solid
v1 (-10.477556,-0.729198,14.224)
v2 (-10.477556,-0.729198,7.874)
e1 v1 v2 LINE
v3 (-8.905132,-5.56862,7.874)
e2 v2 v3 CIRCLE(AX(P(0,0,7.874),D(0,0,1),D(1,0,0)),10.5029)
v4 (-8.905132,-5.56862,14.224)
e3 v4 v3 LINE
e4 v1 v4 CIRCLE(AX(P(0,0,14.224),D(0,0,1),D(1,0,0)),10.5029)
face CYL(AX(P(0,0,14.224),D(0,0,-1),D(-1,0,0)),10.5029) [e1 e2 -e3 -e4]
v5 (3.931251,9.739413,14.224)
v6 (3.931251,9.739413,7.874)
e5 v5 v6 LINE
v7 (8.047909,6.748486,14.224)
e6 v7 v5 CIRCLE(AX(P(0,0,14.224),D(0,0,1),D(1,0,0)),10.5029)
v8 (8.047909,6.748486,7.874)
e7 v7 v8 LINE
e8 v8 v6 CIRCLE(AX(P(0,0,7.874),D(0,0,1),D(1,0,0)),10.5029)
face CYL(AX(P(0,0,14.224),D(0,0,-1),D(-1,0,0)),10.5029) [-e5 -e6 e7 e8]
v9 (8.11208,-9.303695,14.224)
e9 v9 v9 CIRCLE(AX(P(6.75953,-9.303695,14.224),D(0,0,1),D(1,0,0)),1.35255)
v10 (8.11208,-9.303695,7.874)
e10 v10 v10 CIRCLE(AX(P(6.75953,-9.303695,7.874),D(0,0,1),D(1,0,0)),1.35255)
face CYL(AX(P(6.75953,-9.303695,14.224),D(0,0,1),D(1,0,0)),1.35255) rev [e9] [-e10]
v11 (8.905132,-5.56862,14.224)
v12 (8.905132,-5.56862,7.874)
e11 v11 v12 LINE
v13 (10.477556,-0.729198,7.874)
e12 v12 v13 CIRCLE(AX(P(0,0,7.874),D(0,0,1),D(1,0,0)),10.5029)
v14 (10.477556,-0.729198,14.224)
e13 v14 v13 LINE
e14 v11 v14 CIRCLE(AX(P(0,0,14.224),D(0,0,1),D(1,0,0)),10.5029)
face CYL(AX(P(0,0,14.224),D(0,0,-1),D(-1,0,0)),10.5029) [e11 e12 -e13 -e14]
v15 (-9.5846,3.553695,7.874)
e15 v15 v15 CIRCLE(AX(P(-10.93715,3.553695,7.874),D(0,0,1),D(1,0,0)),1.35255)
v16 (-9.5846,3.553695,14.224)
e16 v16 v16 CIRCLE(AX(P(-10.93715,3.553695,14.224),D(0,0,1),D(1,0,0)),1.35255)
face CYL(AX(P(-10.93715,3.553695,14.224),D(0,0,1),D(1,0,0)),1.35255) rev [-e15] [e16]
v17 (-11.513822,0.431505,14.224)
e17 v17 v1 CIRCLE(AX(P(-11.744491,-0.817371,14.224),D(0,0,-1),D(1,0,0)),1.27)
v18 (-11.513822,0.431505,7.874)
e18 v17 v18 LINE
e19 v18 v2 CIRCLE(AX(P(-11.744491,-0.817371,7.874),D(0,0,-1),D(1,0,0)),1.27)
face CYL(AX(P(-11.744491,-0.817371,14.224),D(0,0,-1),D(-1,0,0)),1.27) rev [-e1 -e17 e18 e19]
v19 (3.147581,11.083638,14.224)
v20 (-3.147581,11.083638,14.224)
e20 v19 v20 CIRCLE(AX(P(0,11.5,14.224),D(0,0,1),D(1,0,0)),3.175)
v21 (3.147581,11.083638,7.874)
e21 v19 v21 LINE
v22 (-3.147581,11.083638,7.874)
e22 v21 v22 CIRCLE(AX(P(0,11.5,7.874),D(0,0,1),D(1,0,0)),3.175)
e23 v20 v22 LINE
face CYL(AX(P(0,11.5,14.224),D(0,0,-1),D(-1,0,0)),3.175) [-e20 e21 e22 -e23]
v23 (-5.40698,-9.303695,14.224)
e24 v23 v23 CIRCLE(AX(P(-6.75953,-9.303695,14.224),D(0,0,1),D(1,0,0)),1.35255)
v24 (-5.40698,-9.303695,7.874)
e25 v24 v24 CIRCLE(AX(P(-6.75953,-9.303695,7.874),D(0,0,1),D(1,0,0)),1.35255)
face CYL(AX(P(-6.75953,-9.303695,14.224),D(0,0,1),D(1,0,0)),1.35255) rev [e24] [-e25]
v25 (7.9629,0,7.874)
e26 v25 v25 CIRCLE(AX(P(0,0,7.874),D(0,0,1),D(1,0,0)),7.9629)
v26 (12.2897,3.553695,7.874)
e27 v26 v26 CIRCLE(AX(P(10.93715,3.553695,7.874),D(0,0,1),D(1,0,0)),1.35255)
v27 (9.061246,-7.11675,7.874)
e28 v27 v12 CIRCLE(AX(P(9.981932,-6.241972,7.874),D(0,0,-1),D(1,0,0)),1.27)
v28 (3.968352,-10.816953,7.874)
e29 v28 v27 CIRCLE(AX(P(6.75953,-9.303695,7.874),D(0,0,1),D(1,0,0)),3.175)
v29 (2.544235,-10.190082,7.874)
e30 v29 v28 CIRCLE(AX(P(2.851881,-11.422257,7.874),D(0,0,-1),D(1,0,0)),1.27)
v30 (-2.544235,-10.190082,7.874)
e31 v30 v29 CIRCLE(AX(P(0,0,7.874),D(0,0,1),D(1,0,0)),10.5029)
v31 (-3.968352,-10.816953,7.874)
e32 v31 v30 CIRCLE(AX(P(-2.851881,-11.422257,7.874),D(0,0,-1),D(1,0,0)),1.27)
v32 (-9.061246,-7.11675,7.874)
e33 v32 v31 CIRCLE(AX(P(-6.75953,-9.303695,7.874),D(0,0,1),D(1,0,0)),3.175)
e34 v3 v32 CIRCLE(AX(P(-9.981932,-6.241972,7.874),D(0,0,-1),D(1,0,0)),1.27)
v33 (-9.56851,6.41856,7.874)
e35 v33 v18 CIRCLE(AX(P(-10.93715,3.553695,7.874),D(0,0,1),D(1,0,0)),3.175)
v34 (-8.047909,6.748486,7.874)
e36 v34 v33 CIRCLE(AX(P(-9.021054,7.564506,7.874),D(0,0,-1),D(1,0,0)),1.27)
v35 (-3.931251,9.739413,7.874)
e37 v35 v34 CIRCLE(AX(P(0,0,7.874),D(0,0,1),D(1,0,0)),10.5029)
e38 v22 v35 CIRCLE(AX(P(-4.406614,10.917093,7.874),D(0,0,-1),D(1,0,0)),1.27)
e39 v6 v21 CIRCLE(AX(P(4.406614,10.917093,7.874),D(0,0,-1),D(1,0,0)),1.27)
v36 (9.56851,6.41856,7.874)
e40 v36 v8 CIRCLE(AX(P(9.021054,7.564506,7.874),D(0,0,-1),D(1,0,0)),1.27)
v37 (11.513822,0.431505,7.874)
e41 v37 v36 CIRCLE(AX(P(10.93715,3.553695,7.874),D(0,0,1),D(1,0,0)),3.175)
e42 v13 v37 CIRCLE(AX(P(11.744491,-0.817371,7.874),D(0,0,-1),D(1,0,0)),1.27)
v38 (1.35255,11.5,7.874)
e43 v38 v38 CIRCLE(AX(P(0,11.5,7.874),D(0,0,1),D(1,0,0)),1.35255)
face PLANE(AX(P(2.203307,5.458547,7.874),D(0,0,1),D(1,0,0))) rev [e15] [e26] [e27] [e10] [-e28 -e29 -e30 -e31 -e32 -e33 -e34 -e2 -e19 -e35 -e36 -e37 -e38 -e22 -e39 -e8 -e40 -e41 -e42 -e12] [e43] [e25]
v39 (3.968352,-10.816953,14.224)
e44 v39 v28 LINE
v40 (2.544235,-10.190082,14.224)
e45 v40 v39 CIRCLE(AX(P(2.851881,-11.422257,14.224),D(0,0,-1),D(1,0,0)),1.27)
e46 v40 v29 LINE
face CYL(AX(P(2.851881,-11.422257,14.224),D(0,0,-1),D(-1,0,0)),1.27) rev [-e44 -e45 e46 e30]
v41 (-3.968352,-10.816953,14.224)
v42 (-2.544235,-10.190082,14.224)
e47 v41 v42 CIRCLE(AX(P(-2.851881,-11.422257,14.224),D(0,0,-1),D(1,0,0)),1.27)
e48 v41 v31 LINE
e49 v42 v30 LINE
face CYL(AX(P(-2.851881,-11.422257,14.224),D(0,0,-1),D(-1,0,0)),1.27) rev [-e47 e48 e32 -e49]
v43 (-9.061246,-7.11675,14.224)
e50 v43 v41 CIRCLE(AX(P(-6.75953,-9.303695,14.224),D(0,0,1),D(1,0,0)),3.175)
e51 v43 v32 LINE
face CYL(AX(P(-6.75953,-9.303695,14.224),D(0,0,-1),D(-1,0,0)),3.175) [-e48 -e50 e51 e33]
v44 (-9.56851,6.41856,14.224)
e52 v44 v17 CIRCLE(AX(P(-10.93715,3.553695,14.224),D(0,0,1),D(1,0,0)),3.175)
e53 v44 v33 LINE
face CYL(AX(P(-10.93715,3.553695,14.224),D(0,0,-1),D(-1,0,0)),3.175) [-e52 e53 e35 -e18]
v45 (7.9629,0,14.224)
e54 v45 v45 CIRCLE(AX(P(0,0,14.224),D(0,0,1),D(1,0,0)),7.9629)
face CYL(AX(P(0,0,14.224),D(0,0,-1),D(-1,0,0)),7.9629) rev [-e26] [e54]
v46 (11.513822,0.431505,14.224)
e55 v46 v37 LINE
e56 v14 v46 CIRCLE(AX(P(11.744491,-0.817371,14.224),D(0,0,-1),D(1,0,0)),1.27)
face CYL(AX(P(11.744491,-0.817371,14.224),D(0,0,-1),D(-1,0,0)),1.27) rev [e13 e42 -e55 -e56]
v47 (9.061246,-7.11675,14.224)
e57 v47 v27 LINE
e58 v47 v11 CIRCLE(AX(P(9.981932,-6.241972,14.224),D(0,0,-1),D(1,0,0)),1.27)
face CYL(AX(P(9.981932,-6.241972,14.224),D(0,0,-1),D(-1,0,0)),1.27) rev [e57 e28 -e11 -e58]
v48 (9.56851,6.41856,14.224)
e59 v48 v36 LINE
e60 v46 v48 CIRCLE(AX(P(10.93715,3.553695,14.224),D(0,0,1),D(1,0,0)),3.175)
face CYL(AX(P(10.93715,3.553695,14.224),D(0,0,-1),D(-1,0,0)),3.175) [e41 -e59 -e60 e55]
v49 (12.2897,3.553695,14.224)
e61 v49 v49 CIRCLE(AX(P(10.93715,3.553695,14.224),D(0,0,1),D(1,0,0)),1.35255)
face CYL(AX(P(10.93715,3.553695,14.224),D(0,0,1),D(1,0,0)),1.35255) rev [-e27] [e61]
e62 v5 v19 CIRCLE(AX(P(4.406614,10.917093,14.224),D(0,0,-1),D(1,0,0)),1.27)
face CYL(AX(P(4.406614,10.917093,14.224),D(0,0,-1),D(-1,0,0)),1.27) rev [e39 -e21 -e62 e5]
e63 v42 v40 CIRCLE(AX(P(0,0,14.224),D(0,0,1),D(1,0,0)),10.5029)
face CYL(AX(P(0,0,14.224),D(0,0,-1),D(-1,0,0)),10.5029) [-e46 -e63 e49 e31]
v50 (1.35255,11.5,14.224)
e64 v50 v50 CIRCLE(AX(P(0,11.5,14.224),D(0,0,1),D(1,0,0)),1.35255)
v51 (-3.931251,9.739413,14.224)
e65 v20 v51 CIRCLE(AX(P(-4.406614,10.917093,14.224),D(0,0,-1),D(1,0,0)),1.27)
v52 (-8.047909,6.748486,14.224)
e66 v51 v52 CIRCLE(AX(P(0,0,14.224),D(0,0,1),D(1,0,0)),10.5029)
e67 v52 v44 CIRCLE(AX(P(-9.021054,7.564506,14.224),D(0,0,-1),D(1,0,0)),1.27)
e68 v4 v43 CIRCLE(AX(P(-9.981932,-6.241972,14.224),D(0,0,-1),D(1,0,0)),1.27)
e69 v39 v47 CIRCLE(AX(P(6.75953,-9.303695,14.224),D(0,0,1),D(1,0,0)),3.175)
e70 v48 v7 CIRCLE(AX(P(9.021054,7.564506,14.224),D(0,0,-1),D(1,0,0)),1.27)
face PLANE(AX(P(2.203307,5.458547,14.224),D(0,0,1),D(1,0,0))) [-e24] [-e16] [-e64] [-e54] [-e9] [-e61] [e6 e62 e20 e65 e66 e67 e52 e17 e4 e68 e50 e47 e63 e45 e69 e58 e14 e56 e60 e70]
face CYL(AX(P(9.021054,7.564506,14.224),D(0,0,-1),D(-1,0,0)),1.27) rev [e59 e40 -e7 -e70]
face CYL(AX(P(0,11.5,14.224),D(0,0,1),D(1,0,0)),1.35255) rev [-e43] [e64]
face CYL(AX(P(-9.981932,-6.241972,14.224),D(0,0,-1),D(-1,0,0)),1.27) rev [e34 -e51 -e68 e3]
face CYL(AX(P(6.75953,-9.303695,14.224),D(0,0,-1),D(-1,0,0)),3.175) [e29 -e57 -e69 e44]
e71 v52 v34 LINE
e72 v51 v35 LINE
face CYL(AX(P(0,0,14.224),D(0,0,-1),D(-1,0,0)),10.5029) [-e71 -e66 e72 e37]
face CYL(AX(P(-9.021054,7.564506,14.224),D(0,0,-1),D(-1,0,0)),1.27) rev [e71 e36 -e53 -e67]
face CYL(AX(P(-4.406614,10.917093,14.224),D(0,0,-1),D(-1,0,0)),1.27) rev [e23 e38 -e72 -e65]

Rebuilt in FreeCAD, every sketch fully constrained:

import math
import FreeCAD as App
import Part
import Sketcher
Q = App.Units.Quantity

doc = App.newDocument("Part")
body = doc.addObject("PartDesign::Body", "Body")

# Sketch on XY plane
sketch1 = body.newObject("Sketcher::SketchObject", "Sketch")
sketch1.AttachmentSupport = (doc.getObject("XY_Plane"), [""])
sketch1.MapMode = "FlatFace"
sketch1.AttachmentOffset = App.Placement(App.Vector(0, 0, 0.31 * 25.4), App.Rotation())
sketch1.addGeometry([
    Part.ArcOfCircle(Part.Circle(App.Vector(0, 0, 0), App.Vector(0, 0, 1), 10.5), math.radians(40), math.radians(68)),  # 0
    Part.ArcOfCircle(Part.Circle(App.Vector(4.4, 10.9, 0), App.Vector(0, 0, 1), 1.3), math.radians(172), math.radians(248)),  # 1
    Part.ArcOfCircle(Part.Circle(App.Vector(0, 11.5, 0), App.Vector(0, 0, 1), 3.2), math.radians(-8), math.radians(188)),  # 2
    Part.ArcOfCircle(Part.Circle(App.Vector(-4.4, 10.9, 0), App.Vector(0, 0, 1), 1.3), math.radians(-68), math.radians(8)),  # 3
    Part.ArcOfCircle(Part.Circle(App.Vector(0, 0, 0), App.Vector(0, 0, 1), 10.5), math.radians(112), math.radians(140)),  # 4
    Part.ArcOfCircle(Part.Circle(App.Vector(-9, 7.6, 0), App.Vector(0, 0, 1), 1.3), math.radians(-116), math.radians(-40)),  # 5
    Part.ArcOfCircle(Part.Circle(App.Vector(-10.9, 3.6, 0), App.Vector(0, 0, 1), 3.2), math.radians(64), math.radians(260)),  # 6
    Part.ArcOfCircle(Part.Circle(App.Vector(-11.7, -0.8, 0), App.Vector(0, 0, 1), 1.3), math.radians(4), math.radians(80)),  # 7
    Part.ArcOfCircle(Part.Circle(App.Vector(0, 0, 0), App.Vector(0, 0, 1), 10.5), math.radians(-176), math.radians(-148)),  # 8
    Part.ArcOfCircle(Part.Circle(App.Vector(-10, -6.2, 0), App.Vector(0, 0, 1), 1.3), math.radians(-44), math.radians(32)),  # 9
    Part.ArcOfCircle(Part.Circle(App.Vector(-6.8, -9.3, 0), App.Vector(0, 0, 1), 3.2), math.radians(136), math.radians(332)),  # 10
    Part.ArcOfCircle(Part.Circle(App.Vector(-2.9, -11.4, 0), App.Vector(0, 0, 1), 1.3), math.radians(76), math.radians(152)),  # 11
    Part.ArcOfCircle(Part.Circle(App.Vector(0, 0, 0), App.Vector(0, 0, 1), 10.5), math.radians(-104), math.radians(-76)),  # 12
    Part.ArcOfCircle(Part.Circle(App.Vector(2.9, -11.4, 0), App.Vector(0, 0, 1), 1.3), math.radians(28), math.radians(104)),  # 13
    Part.ArcOfCircle(Part.Circle(App.Vector(6.8, -9.3, 0), App.Vector(0, 0, 1), 3.2), math.radians(-152), math.radians(44)),  # 14
    Part.ArcOfCircle(Part.Circle(App.Vector(10, -6.2, 0), App.Vector(0, 0, 1), 1.3), math.radians(148), math.radians(224)),  # 15
    Part.ArcOfCircle(Part.Circle(App.Vector(0, 0, 0), App.Vector(0, 0, 1), 10.5), math.radians(-32), math.radians(-4)),  # 16
    Part.ArcOfCircle(Part.Circle(App.Vector(11.7, -0.8, 0), App.Vector(0, 0, 1), 1.3), math.radians(100), math.radians(176)),  # 17
    Part.ArcOfCircle(Part.Circle(App.Vector(10.9, 3.6, 0), App.Vector(0, 0, 1), 3.2), math.radians(-80), math.radians(116)),  # 18
    Part.ArcOfCircle(Part.Circle(App.Vector(9, 7.6, 0), App.Vector(0, 0, 1), 1.3), math.radians(-140), math.radians(-64)),  # 19
    Part.Circle(App.Vector(0, 0, 0), App.Vector(0, 0, 1), 8),  # 20
], False)
sketch1.addConstraint([
    Sketcher.Constraint("Tangent", 0, 2, 1, 2),
    Sketcher.Constraint("Tangent", 1, 1, 2, 1),
    Sketcher.Constraint("Tangent", 2, 2, 3, 2),
    Sketcher.Constraint("Tangent", 3, 1, 4, 1),
    Sketcher.Constraint("Tangent", 4, 2, 5, 2),
    Sketcher.Constraint("Tangent", 5, 1, 6, 1),
    Sketcher.Constraint("Tangent", 6, 2, 7, 2),
    Sketcher.Constraint("Tangent", 7, 1, 8, 1),
    Sketcher.Constraint("Tangent", 8, 2, 9, 2),
    Sketcher.Constraint("Tangent", 9, 1, 10, 1),
    Sketcher.Constraint("Tangent", 10, 2, 11, 2),
    Sketcher.Constraint("Tangent", 11, 1, 12, 1),
    Sketcher.Constraint("Tangent", 12, 2, 13, 2),
    Sketcher.Constraint("Tangent", 13, 1, 14, 1),
    Sketcher.Constraint("Tangent", 14, 2, 15, 2),
    Sketcher.Constraint("Tangent", 15, 1, 16, 1),
    Sketcher.Constraint("Tangent", 16, 2, 17, 2),
    Sketcher.Constraint("Tangent", 17, 1, 18, 1),
    Sketcher.Constraint("Tangent", 18, 2, 19, 2),
    Sketcher.Constraint("Tangent", 19, 1, 0, 1),
    Sketcher.Constraint("Coincident", 0, 3, -1, 1),
    Sketcher.Constraint("Coincident", 4, 3, -1, 1),
    Sketcher.Constraint("Coincident", 8, 3, -1, 1),
    Sketcher.Constraint("Coincident", 12, 3, -1, 1),
    Sketcher.Constraint("Coincident", 16, 3, -1, 1),
    Sketcher.Constraint("Coincident", 20, 3, -1, 1),
    Sketcher.Constraint("Equal", 1, 3),
    Sketcher.Constraint("Equal", 0, 4),
    Sketcher.Constraint("Equal", 3, 5),
    Sketcher.Constraint("Equal", 2, 6),
    Sketcher.Constraint("Equal", 5, 7),
    Sketcher.Constraint("Equal", 4, 8),
    Sketcher.Constraint("Equal", 7, 9),
    Sketcher.Constraint("Equal", 6, 10),
    Sketcher.Constraint("Equal", 9, 11),
    Sketcher.Constraint("Equal", 8, 12),
    Sketcher.Constraint("Equal", 11, 13),
    Sketcher.Constraint("Equal", 10, 14),
    Sketcher.Constraint("Equal", 13, 15),
    Sketcher.Constraint("Equal", 12, 16),
    Sketcher.Constraint("Equal", 15, 17),
    Sketcher.Constraint("Equal", 14, 18),
    Sketcher.Constraint("Equal", 17, 19),
    Sketcher.Constraint("Symmetric", 10, 3, 14, 3, -2),
    Sketcher.Constraint("Symmetric", 6, 3, 18, 3, -2),
    Sketcher.Constraint("PointOnObject", 2, 3, -2),
    Sketcher.Constraint("Radius", 1, Q("0.05 in")),
    Sketcher.Constraint("Diameter", 20, Q("0.627 in")),
    Sketcher.Constraint("Radius", 2, Q("0.125 in")),
    Sketcher.Constraint("Radius", 0, Q("0.4135 in")),
    Sketcher.Constraint("DistanceX", 6, 2, -1, 1, Q("0.4533001 in")),
    Sketcher.Constraint("DistanceY", 6, 2, 4, 2, Q("0.2487 in")),
    Sketcher.Constraint("DistanceY", -1, 1, 2, 3, Q("11.5 mm")),
    Sketcher.Constraint("DistanceY", 9, 3, 7, 3, Q("5.4246 mm")),
    Sketcher.Constraint("DistanceX", 9, 3, 10, 3, Q("3.222402 mm")),
])
pad1 = body.newObject("PartDesign::Pad", "Pad")
pad1.Profile = sketch1
pad1.Length = Q("0.25 in")

# Sketch on XY plane
sketch2 = body.newObject("Sketcher::SketchObject", "Sketch001")
sketch2.AttachmentSupport = (doc.getObject("XY_Plane"), [""])
sketch2.MapMode = "FlatFace"
sketch2.AttachmentOffset = App.Placement(App.Vector(0, 0, 0.56 * 25.4), App.Rotation())
sketch2.addGeometry([
    Part.Circle(App.Vector(-10.9, 3.6, 0), App.Vector(0, 0, 1), 1.4),  # 0
    Part.Circle(App.Vector(0, 11.5, 0), App.Vector(0, 0, 1), 1.4),  # 1
    Part.Circle(App.Vector(10.9, 3.6, 0), App.Vector(0, 0, 1), 1.4),  # 2
    Part.Circle(App.Vector(6.8, -9.3, 0), App.Vector(0, 0, 1), 1.4),  # 3
    Part.Circle(App.Vector(-6.8, -9.3, 0), App.Vector(0, 0, 1), 1.4),  # 4
], False)
sketch2.addConstraint([
    Sketcher.Constraint("Equal", 0, 1),
    Sketcher.Constraint("Equal", 1, 2),
    Sketcher.Constraint("Equal", 2, 3),
    Sketcher.Constraint("Equal", 3, 4),
    Sketcher.Constraint("Symmetric", 0, 3, 2, 3, -2),
    Sketcher.Constraint("Symmetric", 3, 3, 4, 3, -2),
    Sketcher.Constraint("PointOnObject", 1, 3, -2),
    Sketcher.Constraint("Diameter", 0, Q("0.1065 in")),
    Sketcher.Constraint("DistanceY", -1, 1, 1, 3, Q("11.5 mm")),
    Sketcher.Constraint("DistanceX", 0, 3, 2, 3, Q("21.8743 mm")),
    Sketcher.Constraint("DistanceX", -1, 1, 3, 3, Q("6.75953 mm")),
    Sketcher.Constraint("DistanceY", 3, 3, 2, 3, Q("12.857391 mm")),
    Sketcher.Constraint("DistanceY", -1, 1, 0, 3, Q("3.553695 mm")),
])
doc.recompute()
hole = body.newObject("PartDesign::Hole", "Hole")
hole.Profile = sketch2
hole.ThreadType = "None"
hole.Diameter = Q("0.1065 in")
hole.DepthType = "ThroughAll"

doc.recompute()
